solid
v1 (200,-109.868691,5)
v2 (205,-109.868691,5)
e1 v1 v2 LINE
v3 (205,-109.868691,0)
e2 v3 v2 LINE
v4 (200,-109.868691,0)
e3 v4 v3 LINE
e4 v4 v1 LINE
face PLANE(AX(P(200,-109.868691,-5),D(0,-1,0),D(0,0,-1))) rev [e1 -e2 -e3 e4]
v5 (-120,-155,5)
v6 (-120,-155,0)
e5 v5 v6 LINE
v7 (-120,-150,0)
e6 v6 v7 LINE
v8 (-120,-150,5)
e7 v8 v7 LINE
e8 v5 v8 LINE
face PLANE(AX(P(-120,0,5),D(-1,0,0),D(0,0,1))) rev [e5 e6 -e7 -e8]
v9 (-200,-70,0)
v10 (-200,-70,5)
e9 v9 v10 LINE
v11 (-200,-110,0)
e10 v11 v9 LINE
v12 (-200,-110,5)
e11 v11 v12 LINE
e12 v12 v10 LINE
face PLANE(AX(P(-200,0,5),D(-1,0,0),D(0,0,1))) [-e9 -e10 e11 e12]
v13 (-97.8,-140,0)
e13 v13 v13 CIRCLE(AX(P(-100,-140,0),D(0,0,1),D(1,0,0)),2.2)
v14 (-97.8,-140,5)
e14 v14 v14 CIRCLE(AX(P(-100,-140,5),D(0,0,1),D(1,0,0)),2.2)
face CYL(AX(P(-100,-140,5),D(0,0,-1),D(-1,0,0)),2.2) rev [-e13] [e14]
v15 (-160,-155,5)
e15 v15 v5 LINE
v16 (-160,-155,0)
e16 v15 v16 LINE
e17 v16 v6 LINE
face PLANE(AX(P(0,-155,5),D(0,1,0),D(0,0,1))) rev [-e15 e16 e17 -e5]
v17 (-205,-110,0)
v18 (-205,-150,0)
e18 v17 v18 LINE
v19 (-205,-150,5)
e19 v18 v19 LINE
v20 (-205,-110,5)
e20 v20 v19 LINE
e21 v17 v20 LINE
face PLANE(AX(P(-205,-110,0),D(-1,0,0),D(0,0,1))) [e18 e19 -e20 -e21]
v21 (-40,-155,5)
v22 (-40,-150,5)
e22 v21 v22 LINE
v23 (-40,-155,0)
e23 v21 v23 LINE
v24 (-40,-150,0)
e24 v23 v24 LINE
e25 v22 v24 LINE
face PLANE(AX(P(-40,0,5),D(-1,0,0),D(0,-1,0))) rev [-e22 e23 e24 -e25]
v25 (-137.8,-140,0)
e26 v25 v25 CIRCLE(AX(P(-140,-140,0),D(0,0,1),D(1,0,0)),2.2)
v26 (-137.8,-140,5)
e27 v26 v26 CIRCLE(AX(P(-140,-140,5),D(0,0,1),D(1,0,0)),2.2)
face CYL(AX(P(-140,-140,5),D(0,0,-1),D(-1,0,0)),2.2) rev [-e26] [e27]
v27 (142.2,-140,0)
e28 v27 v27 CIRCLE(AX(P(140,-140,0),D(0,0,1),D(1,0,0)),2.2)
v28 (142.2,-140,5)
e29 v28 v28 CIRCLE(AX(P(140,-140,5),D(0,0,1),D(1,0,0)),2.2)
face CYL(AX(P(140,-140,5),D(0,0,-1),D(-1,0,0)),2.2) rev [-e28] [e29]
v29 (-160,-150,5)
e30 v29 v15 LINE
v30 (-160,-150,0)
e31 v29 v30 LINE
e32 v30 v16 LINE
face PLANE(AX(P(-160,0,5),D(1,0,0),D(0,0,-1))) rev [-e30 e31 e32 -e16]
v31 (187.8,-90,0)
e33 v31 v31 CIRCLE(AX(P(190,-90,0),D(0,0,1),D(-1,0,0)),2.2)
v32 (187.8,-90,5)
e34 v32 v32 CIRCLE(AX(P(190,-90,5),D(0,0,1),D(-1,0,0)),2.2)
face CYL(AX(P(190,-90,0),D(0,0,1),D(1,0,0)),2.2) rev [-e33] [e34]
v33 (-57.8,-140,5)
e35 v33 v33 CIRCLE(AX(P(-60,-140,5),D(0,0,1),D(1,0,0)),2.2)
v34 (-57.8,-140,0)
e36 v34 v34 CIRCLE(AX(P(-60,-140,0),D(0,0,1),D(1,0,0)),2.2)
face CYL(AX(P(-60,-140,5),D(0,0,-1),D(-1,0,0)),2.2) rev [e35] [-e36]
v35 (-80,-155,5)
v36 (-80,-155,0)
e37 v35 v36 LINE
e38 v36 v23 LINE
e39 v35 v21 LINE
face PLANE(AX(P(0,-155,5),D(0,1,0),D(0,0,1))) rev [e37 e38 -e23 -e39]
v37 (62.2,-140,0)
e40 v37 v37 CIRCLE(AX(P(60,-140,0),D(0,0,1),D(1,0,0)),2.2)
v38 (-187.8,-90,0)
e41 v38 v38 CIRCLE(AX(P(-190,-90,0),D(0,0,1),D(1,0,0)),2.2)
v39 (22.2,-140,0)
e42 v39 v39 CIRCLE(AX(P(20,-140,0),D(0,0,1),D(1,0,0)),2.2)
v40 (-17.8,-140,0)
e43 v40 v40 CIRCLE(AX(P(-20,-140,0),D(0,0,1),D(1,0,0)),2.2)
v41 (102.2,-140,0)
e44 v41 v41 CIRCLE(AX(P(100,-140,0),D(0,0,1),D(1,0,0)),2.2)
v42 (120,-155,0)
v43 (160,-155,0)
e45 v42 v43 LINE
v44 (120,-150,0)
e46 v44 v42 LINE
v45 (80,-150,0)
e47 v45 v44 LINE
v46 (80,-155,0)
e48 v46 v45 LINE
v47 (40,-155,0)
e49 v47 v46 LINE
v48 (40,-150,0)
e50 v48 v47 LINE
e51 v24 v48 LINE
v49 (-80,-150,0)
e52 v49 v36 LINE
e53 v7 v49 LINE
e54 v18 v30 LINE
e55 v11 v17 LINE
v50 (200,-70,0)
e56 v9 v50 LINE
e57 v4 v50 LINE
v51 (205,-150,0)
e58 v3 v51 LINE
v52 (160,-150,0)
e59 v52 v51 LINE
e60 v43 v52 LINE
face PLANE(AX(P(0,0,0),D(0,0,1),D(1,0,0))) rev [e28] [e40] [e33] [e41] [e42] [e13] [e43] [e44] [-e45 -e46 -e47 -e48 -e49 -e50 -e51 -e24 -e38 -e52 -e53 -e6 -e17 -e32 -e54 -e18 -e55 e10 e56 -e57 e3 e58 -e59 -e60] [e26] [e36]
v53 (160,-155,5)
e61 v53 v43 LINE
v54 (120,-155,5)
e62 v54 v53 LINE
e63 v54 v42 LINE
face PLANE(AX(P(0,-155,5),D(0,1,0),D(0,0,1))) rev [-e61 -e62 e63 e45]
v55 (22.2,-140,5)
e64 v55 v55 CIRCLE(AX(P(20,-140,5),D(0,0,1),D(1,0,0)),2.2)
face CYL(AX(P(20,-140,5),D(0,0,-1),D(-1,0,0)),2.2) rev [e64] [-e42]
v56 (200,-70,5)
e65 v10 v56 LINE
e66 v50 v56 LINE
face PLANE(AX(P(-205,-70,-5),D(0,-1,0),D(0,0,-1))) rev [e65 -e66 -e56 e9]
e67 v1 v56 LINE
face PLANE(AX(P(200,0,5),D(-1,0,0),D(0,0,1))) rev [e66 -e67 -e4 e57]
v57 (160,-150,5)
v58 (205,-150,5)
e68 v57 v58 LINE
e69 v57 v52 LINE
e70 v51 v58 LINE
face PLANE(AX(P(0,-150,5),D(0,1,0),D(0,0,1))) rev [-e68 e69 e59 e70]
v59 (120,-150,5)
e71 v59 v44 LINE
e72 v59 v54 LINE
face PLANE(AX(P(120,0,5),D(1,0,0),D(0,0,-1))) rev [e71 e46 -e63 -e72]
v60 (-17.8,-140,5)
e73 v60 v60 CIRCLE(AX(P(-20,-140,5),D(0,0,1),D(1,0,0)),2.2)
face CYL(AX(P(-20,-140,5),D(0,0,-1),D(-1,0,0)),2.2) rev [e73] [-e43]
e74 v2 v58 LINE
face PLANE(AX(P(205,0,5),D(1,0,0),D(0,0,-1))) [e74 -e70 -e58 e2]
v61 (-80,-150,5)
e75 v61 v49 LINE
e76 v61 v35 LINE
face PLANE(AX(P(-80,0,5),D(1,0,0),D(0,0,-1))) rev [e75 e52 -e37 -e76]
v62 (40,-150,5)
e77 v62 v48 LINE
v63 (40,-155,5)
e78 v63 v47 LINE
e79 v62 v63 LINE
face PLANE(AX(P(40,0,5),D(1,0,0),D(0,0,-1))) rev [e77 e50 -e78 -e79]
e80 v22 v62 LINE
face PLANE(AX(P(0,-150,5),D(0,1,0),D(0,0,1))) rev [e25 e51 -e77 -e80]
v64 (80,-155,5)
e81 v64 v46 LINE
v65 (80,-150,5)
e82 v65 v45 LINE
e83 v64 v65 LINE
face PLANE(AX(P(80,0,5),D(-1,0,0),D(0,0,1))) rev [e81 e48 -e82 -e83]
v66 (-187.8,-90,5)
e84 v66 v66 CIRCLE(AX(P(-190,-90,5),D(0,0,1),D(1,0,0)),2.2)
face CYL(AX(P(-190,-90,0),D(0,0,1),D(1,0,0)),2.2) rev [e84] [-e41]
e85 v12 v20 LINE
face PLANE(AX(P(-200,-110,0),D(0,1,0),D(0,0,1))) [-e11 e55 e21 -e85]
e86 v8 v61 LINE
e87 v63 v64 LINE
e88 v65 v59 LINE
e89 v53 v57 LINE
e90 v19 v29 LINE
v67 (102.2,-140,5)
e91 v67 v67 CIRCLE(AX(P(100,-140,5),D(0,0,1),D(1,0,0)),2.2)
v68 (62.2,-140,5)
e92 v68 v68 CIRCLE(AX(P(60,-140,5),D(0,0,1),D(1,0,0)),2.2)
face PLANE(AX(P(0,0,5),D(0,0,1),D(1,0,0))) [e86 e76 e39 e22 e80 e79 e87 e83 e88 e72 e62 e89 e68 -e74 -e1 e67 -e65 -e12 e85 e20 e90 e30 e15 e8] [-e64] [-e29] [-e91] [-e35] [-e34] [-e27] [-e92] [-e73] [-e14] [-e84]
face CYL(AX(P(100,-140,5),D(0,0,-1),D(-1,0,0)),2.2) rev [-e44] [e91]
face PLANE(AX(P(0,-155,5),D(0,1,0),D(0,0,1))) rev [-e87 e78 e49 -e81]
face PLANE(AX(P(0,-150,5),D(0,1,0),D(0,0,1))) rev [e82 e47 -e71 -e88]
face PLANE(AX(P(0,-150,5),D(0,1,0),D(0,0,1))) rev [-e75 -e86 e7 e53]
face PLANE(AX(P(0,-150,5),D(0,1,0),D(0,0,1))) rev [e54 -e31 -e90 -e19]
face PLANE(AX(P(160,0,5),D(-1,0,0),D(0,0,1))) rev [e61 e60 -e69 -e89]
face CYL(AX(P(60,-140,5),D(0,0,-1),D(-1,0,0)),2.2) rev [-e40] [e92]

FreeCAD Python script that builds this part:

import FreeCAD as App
import Part
import Sketcher
from FreeCAD import Vector

doc = App.newDocument("Part")
body = doc.addObject("PartDesign::Body", "Body")

# Sketch on XY plane
sketch1 = doc.addObject("Sketcher::SketchObject", "Sketch")
body.addObject(sketch1)
sketch1.AttachmentSupport = (doc.XY_Plane, [""])
sketch1.MapMode = "FlatFace"
sketch1.addGeometry([
    Part.LineSegment(Vector(200, 150, 0), Vector(-200, 150, 0)),  # 0
    Part.LineSegment(Vector(-200, 150, 0), Vector(-200, 110, 0)),  # 1
    Part.LineSegment(Vector(-200, 110, 0), Vector(-205, 110, 0)),  # 2
    Part.LineSegment(Vector(-205, 110, 0), Vector(-205, 70, 0)),  # 3
    Part.LineSegment(Vector(-205, 70, 0), Vector(-200, 70, 0)),  # 4
    Part.LineSegment(Vector(-200, 70, 0), Vector(-200, 30, 0)),  # 5
    Part.LineSegment(Vector(-200, 30, 0), Vector(-205, 30, 0)),  # 6
    Part.LineSegment(Vector(-205, 30, 0), Vector(-205, -30, 0)),  # 7
    Part.LineSegment(Vector(-205, -30, 0), Vector(-200, -30, 0)),  # 8
    Part.LineSegment(Vector(-200, -30, 0), Vector(-200, -70, 0)),  # 9
    Part.LineSegment(Vector(-200, -70, 0), Vector(-205, -70, 0)),  # 10
    Part.LineSegment(Vector(-205, -70, 0), Vector(-205, -110, 0)),  # 11
    Part.LineSegment(Vector(-205, -110, 0), Vector(-200, -110, 0)),  # 12
    Part.LineSegment(Vector(-200, -110, 0), Vector(-200, -150, 0)),  # 13
    Part.LineSegment(Vector(-200, -150, 0), Vector(-160, -150, 0)),  # 14
    Part.LineSegment(Vector(-160, -150, 0), Vector(-160, -155, 0)),  # 15
    Part.LineSegment(Vector(-160, -155, 0), Vector(-120, -155, 0)),  # 16
    Part.LineSegment(Vector(-120, -155, 0), Vector(-120, -150, 0)),  # 17
    Part.LineSegment(Vector(-120, -150, 0), Vector(-80, -150, 0)),  # 18
    Part.LineSegment(Vector(-80, -150, 0), Vector(-80, -155, 0)),  # 19
    Part.LineSegment(Vector(-80, -155, 0), Vector(-40, -155, 0)),  # 20
    Part.LineSegment(Vector(-40, -155, 0), Vector(-40, -150, 0)),  # 21
    Part.LineSegment(Vector(-40, -150, 0), Vector(40, -150, 0)),  # 22
    Part.LineSegment(Vector(40, -150, 0), Vector(40, -155, 0)),  # 23
    Part.LineSegment(Vector(40, -155, 0), Vector(80, -155, 0)),  # 24
    Part.LineSegment(Vector(80, -155, 0), Vector(80, -150, 0)),  # 25
    Part.LineSegment(Vector(80, -150, 0), Vector(120, -150, 0)),  # 26
    Part.LineSegment(Vector(120, -150, 0), Vector(120, -155, 0)),  # 27
    Part.LineSegment(Vector(120, -155, 0), Vector(160, -155, 0)),  # 28
    Part.LineSegment(Vector(160, -155, 0), Vector(160, -150, 0)),  # 29
    Part.LineSegment(Vector(160, -150, 0), Vector(200, -150, 0)),  # 30
    Part.LineSegment(Vector(200, -150, 0), Vector(200, -110, 0)),  # 31
    Part.LineSegment(Vector(200, -110, 0), Vector(205, -110, 0)),  # 32
    Part.LineSegment(Vector(205, -110, 0), Vector(205, -70, 0)),  # 33
    Part.LineSegment(Vector(205, -70, 0), Vector(200, -70, 0)),  # 34
    Part.LineSegment(Vector(200, -70, 0), Vector(200, -30, 0)),  # 35
    Part.LineSegment(Vector(200, -30, 0), Vector(205, -30, 0)),  # 36
    Part.LineSegment(Vector(205, -30, 0), Vector(205, 30, 0)),  # 37
    Part.LineSegment(Vector(205, 30, 0), Vector(200, 30, 0)),  # 38
    Part.LineSegment(Vector(200, 30, 0), Vector(200, 70, 0)),  # 39
    Part.LineSegment(Vector(200, 70, 0), Vector(205, 70, 0)),  # 40
    Part.LineSegment(Vector(205, 70, 0), Vector(205, 110, 0)),  # 41
    Part.LineSegment(Vector(205, 110, 0), Vector(200, 110, 0)),  # 42
    Part.LineSegment(Vector(200, 110, 0), Vector(200, 150, 0)),  # 43
    Part.Circle(Vector(140, -140, 0), Vector(0, 0, 1), 2.2),  # 44
    Part.Circle(Vector(100, -140, 0), Vector(0, 0, 1), 2.2),  # 45
    Part.Circle(Vector(190, -110, 0), Vector(0, 0, 1), 2.2),  # 46
    Part.Circle(Vector(60, -140, 0), Vector(0, 0, 1), 2.2),  # 47
    Part.Circle(Vector(20, -140, 0), Vector(0, 0, 1), 2.2),  # 48
    Part.Circle(Vector(190, -70, 0), Vector(0, 0, 1), 2.2),  # 49
    Part.Circle(Vector(190, -30, 0), Vector(0, 0, 1), 2.2),  # 50
    Part.Circle(Vector(-20, -140, 0), Vector(0, 0, 1), 2.2),  # 51
    Part.Circle(Vector(-60, -140, 0), Vector(0, 0, 1), 2.2),  # 52
    Part.Circle(Vector(-100, -140, 0), Vector(0, 0, 1), 2.2),  # 53
    Part.Circle(Vector(-140, -140, 0), Vector(0, 0, 1), 2.2),  # 54
    Part.Circle(Vector(-190, -110, 0), Vector(0, 0, 1), 2.2),  # 55
    Part.Circle(Vector(-190, -70, 0), Vector(0, 0, 1), 2.2),  # 56
    Part.Circle(Vector(-190, -30, 0), Vector(0, 0, 1), 2.2),  # 57
    Part.Circle(Vector(190, 30, 0), Vector(0, 0, 1), 2.2),  # 58
    Part.Circle(Vector(190, 70, 0), Vector(0, 0, 1), 2.2),  # 59
    Part.Circle(Vector(190, 110, 0), Vector(0, 0, 1), 2.2),  # 60
    Part.Circle(Vector(-190, 30, 0), Vector(0, 0, 1), 2.2),  # 61
    Part.Circle(Vector(-190, 70, 0), Vector(0, 0, 1), 2.2),  # 62
    Part.Circle(Vector(-190, 110, 0), Vector(0, 0, 1), 2.2),  # 63
], False)
sketch1.addConstraint([
    Sketcher.Constraint("Coincident", 0, 2, 1, 1),
    Sketcher.Constraint("Coincident", 1, 2, 2, 1),
    Sketcher.Constraint("Coincident", 2, 2, 3, 1),
    Sketcher.Constraint("Coincident", 3, 2, 4, 1),
    Sketcher.Constraint("Coincident", 4, 2, 5, 1),
    Sketcher.Constraint("Coincident", 5, 2, 6, 1),
    Sketcher.Constraint("Coincident", 6, 2, 7, 1),
    Sketcher.Constraint("Coincident", 7, 2, 8, 1),
    Sketcher.Constraint("Coincident", 8, 2, 9, 1),
    Sketcher.Constraint("Coincident", 9, 2, 10, 1),
    Sketcher.Constraint("Coincident", 10, 2, 11, 1),
    Sketcher.Constraint("Coincident", 11, 2, 12, 1),
    Sketcher.Constraint("Coincident", 12, 2, 13, 1),
    Sketcher.Constraint("Coincident", 13, 2, 14, 1),
    Sketcher.Constraint("Coincident", 14, 2, 15, 1),
    Sketcher.Constraint("Coincident", 15, 2, 16, 1),
    Sketcher.Constraint("Coincident", 16, 2, 17, 1),
    Sketcher.Constraint("Coincident", 17, 2, 18, 1),
    Sketcher.Constraint("Coincident", 18, 2, 19, 1),
    Sketcher.Constraint("Coincident", 19, 2, 20, 1),
    Sketcher.Constraint("Coincident", 20, 2, 21, 1),
    Sketcher.Constraint("Coincident", 21, 2, 22, 1),
    Sketcher.Constraint("Coincident", 22, 2, 23, 1),
    Sketcher.Constraint("Coincident", 23, 2, 24, 1),
    Sketcher.Constraint("Coincident", 24, 2, 25, 1),
    Sketcher.Constraint("Coincident", 25, 2, 26, 1),
    Sketcher.Constraint("Coincident", 26, 2, 27, 1),
    Sketcher.Constraint("Coincident", 27, 2, 28, 1),
    Sketcher.Constraint("Coincident", 28, 2, 29, 1),
    Sketcher.Constraint("Coincident", 29, 2, 30, 1),
    Sketcher.Constraint("Coincident", 30, 2, 31, 1),
    Sketcher.Constraint("Coincident", 31, 2, 32, 1),
    Sketcher.Constraint("Coincident", 32, 2, 33, 1),
    Sketcher.Constraint("Coincident", 33, 2, 34, 1),
    Sketcher.Constraint("Coincident", 34, 2, 35, 1),
    Sketcher.Constraint("Coincident", 35, 2, 36, 1),
    Sketcher.Constraint("Coincident", 36, 2, 37, 1),
    Sketcher.Constraint("Coincident", 37, 2, 38, 1),
    Sketcher.Constraint("Coincident", 38, 2, 39, 1),
    Sketcher.Constraint("Coincident", 39, 2, 40, 1),
    Sketcher.Constraint("Coincident", 40, 2, 41, 1),
    Sketcher.Constraint("Coincident", 41, 2, 42, 1),
    Sketcher.Constraint("Coincident", 42, 2, 43, 1),
    Sketcher.Constraint("Coincident", 43, 2, 0, 1),
    Sketcher.Constraint("Horizontal", 0),
    Sketcher.Constraint("Vertical", 1),
    Sketcher.Constraint("Horizontal", 2),
    Sketcher.Constraint("Vertical", 3),
    Sketcher.Constraint("Horizontal", 4),
    Sketcher.Constraint("Vertical", 5),
    Sketcher.Constraint("Horizontal", 6),
    Sketcher.Constraint("Vertical", 7),
    Sketcher.Constraint("Horizontal", 8),
    Sketcher.Constraint("Vertical", 9),
    Sketcher.Constraint("Horizontal", 10),
    Sketcher.Constraint("Vertical", 11),
    Sketcher.Constraint("Horizontal", 12),
    Sketcher.Constraint("Vertical", 13),
    Sketcher.Constraint("Horizontal", 14),
    Sketcher.Constraint("Vertical", 15),
    Sketcher.Constraint("Horizontal", 16),
    Sketcher.Constraint("Vertical", 17),
    Sketcher.Constraint("Horizontal", 18),
    Sketcher.Constraint("Vertical", 19),
    Sketcher.Constraint("Horizontal", 20),
    Sketcher.Constraint("Vertical", 21),
    Sketcher.Constraint("Horizontal", 22),
    Sketcher.Constraint("Vertical", 23),
    Sketcher.Constraint("Horizontal", 24),
    Sketcher.Constraint("Vertical", 25),
    Sketcher.Constraint("Horizontal", 26),
    Sketcher.Constraint("Vertical", 27),
    Sketcher.Constraint("Horizontal", 28),
    Sketcher.Constraint("Vertical", 29),
    Sketcher.Constraint("Horizontal", 30),
    Sketcher.Constraint("Vertical", 31),
    Sketcher.Constraint("Horizontal", 32),
    Sketcher.Constraint("Vertical", 33),
    Sketcher.Constraint("Horizontal", 34),
    Sketcher.Constraint("Vertical", 35),
    Sketcher.Constraint("Horizontal", 36),
    Sketcher.Constraint("Vertical", 37),
    Sketcher.Constraint("Horizontal", 38),
    Sketcher.Constraint("Vertical", 39),
    Sketcher.Constraint("Horizontal", 40),
    Sketcher.Constraint("Vertical", 41),
    Sketcher.Constraint("Horizontal", 42),
    Sketcher.Constraint("Vertical", 43),
    Sketcher.Constraint("Equal", 44, 45),
    Sketcher.Constraint("Equal", 45, 46),
    Sketcher.Constraint("Equal", 46, 47),
    Sketcher.Constraint("Equal", 47, 48),
    Sketcher.Constraint("Equal", 48, 49),
    Sketcher.Constraint("Equal", 49, 50),
    Sketcher.Constraint("Equal", 50, 51),
    Sketcher.Constraint("Equal", 51, 52),
    Sketcher.Constraint("Equal", 52, 53),
    Sketcher.Constraint("Equal", 53, 54),
    Sketcher.Constraint("Equal", 54, 55),
    Sketcher.Constraint("Equal", 55, 56),
    Sketcher.Constraint("Equal", 56, 57),
    Sketcher.Constraint("Equal", 57, 58),
    Sketcher.Constraint("Equal", 58, 59),
    Sketcher.Constraint("Equal", 59, 60),
    Sketcher.Constraint("Equal", 60, 61),
    Sketcher.Constraint("Equal", 61, 62),
    Sketcher.Constraint("Equal", 62, 63),
    Sketcher.Constraint("Symmetric", 57, 3, 58, 3, -1, 1),
    Sketcher.Constraint("Symmetric", 56, 3, 59, 3, -1, 1),
    Sketcher.Constraint("Symmetric", 55, 3, 60, 3, -1, 1),
    Sketcher.Constraint("Symmetric", 50, 3, 61, 3, -1, 1),
    Sketcher.Constraint("Symmetric", 49, 3, 62, 3, -1, 1),
    Sketcher.Constraint("Symmetric", 46, 3, 63, 3, -1, 1),
    Sketcher.Constraint("Symmetric", 0, 2, 30, 2, -1, 1),
    Sketcher.Constraint("Symmetric", 2, 2, 32, 2, -1, 1),
    Sketcher.Constraint("Symmetric", 4, 2, 34, 2, -1, 1),
    Sketcher.Constraint("Symmetric", 6, 2, 36, 2, -1, 1),
    Sketcher.Constraint("Symmetric", 8, 2, 38, 2, -1, 1),
    Sketcher.Constraint("Symmetric", 10, 2, 40, 2, -1, 1),
    Sketcher.Constraint("Symmetric", 12, 2, 42, 2, -1, 1),
    Sketcher.Constraint("Symmetric", 48, 3, 51, 3, -2),
    Sketcher.Constraint("Symmetric", 47, 3, 52, 3, -2),
    Sketcher.Constraint("Symmetric", 45, 3, 53, 3, -2),
    Sketcher.Constraint("Symmetric", 44, 3, 54, 3, -2),
    Sketcher.Constraint("Symmetric", 46, 3, 55, 3, -2),
    Sketcher.Constraint("Symmetric", 49, 3, 56, 3, -2),
    Sketcher.Constraint("Symmetric", 50, 3, 57, 3, -2),
    Sketcher.Constraint("Symmetric", 20, 2, 23, 2, -2),
    Sketcher.Constraint("Symmetric", 18, 2, 25, 2, -2),
    Sketcher.Constraint("Symmetric", 16, 2, 27, 2, -2),
    Sketcher.Constraint("Symmetric", 14, 2, 29, 2, -2),
    Sketcher.Constraint("Symmetric", 12, 2, 31, 2, -2),
    Sketcher.Constraint("Symmetric", 10, 2, 33, 2, -2),
    Sketcher.Constraint("Symmetric", 8, 2, 35, 2, -2),
    Sketcher.Constraint("Horizontal", 44, 3, 45, 3),
    Sketcher.Constraint("Horizontal", 45, 3, 47, 3),
    Sketcher.Constraint("Horizontal", 47, 3, 48, 3),
    Sketcher.Constraint("Horizontal", 63, 3, 1, 2),
    Sketcher.Constraint("Horizontal", 62, 3, 3, 2),
    Sketcher.Constraint("Horizontal", 61, 3, 5, 2),
    Sketcher.Constraint("Horizontal", 14, 2, 17, 2),
    Sketcher.Constraint("Horizontal", 16, 2, 19, 2),
    Sketcher.Constraint("Horizontal", 18, 2, 21, 2),
    Sketcher.Constraint("Vertical", 46, 3, 49, 3),
    Sketcher.Constraint("Vertical", 49, 3, 50, 3),
    Sketcher.Constraint("Vertical", 1, 2, 4, 2),
    Sketcher.Constraint("Vertical", 3, 2, 6, 2),
    Sketcher.Constraint("Equal", 14, 16),
    Sketcher.Constraint("Equal", 16, 18),
    Sketcher.Constraint("Equal", 18, 20),
    Sketcher.Constraint("Equal", 30, 1),
    Sketcher.Constraint("Equal", 1, 3),
    Sketcher.Constraint("Equal", 3, 5),
    Sketcher.Constraint("Equal", 42, 15),
    Sketcher.Constraint("Diameter", 44, 4.4),
    Sketcher.Constraint("DistanceX", 0, 2, 0, 1, 400.0),
    Sketcher.Constraint("DistanceX", 2, 2, 2, 1, 5.0),
    Sketcher.Constraint("DistanceX", 14, 1, 14, 2, 40.0),
    Sketcher.Constraint("DistanceY", 7, 2, 7, 1, 60.0),
    Sketcher.Constraint("DistanceX", -1, 1, 44, 3, 140.0),
    Sketcher.Constraint("DistanceY", 44, 3, -1, 1, 140.0),
    Sketcher.Constraint("DistanceX", -1, 1, 45, 3, 100.0),
    Sketcher.Constraint("DistanceX", -1, 1, 46, 3, 190.0),
    Sketcher.Constraint("DistanceX", -1, 1, 47, 3, 60.0),
    Sketcher.Constraint("DistanceX", -1, 1, 48, 3, 20.0),
])
pad1 = doc.addObject("PartDesign::Pad", "Pad")
body.addObject(pad1)
pad1.Profile = sketch1
pad1.Length = 5

# Sketch on XY plane
sketch2 = doc.addObject("Sketcher::SketchObject", "Sketch001")
body.addObject(sketch2)
sketch2.AttachmentSupport = (doc.XY_Plane, [""])
sketch2.MapMode = "FlatFace"
sketch2.AttachmentOffset = App.Placement(Vector(0, 0, 5), App.Rotation())
sketch2.addGeometry([
    Part.LineSegment(Vector(-205, 110, 0), Vector(-205, -110.282443, 0)),  # 0
    Part.LineSegment(Vector(-205, -110.282443, 0), Vector(-200, -110.282443, 0)),  # 1
    Part.LineSegment(Vector(-200, -110.282443, 0), Vector(-200, 110, 0)),  # 2
    Part.LineSegment(Vector(-200, 110, 0), Vector(-205, 110, 0)),  # 3
    Part.LineSegment(Vector(200, 110, 0), Vector(200, -109.868691, 0)),  # 4
    Part.LineSegment(Vector(200, -109.868691, 0), Vector(205, -109.868691, 0)),  # 5
    Part.LineSegment(Vector(205, -109.868691, 0), Vector(205, 110, 0)),  # 6
    Part.LineSegment(Vector(205, 110, 0), Vector(200, 110, 0)),  # 7
], False)
sketch2.addConstraint([
    Sketcher.Constraint("Coincident", 0, 2, 1, 1),
    Sketcher.Constraint("Coincident", 1, 2, 2, 1),
    Sketcher.Constraint("Coincident", 2, 2, 3, 1),
    Sketcher.Constraint("Coincident", 3, 2, 0, 1),
    Sketcher.Constraint("Coincident", 4, 2, 5, 1),
    Sketcher.Constraint("Coincident", 5, 2, 6, 1),
    Sketcher.Constraint("Coincident", 6, 2, 7, 1),
    Sketcher.Constraint("Coincident", 7, 2, 4, 1),
    Sketcher.Constraint("Vertical", 0),
    Sketcher.Constraint("Horizontal", 1),
    Sketcher.Constraint("Vertical", 2),
    Sketcher.Constraint("Horizontal", 3),
    Sketcher.Constraint("Vertical", 4),
    Sketcher.Constraint("Horizontal", 5),
    Sketcher.Constraint("Vertical", 6),
    Sketcher.Constraint("Horizontal", 7),
    Sketcher.Constraint("Symmetric", 3, 2, 6, 2, -2),
    Sketcher.Constraint("Equal", 3, 5),
    Sketcher.Constraint("DistanceX", 1, 1, 1, 2, 5.0),
    Sketcher.Constraint("DistanceX", 0, 2, -1, 1, 205.0),
    Sketcher.Constraint("DistanceY", -1, 1, 2, 2, 110.0),
    Sketcher.Constraint("DistanceY", 4, 2, 4, 1, 219.868691),
    Sketcher.Constraint("DistanceY", 0, 2, 0, 1, 220.282443),
])
pocket1 = doc.addObject("PartDesign::Pocket", "Pocket")
body.addObject(pocket1)
pocket1.Profile = sketch2
pocket1.Length = 10

# Sketch on XY plane
sketch3 = doc.addObject("Sketcher::SketchObject", "Sketch002")
body.addObject(sketch3)
sketch3.AttachmentSupport = (doc.XY_Plane, [""])
sketch3.MapMode = "FlatFace"
sketch3.AttachmentOffset = App.Placement(Vector(0, 0, 5), App.Rotation())
sketch3.addGeometry([
    Part.LineSegment(Vector(-205, 150, 0), Vector(-205, 110, 0)),  # 0
    Part.LineSegment(Vector(-205, 110, 0), Vector(-200, 110, 0)),  # 1
    Part.LineSegment(Vector(-200, 110, 0), Vector(-200, 150, 0)),  # 2
    Part.LineSegment(Vector(-200, 150, 0), Vector(-205, 150, 0)),  # 3
    Part.LineSegment(Vector(-205, 70, 0), Vector(-205, 30, 0)),  # 4
    Part.LineSegment(Vector(-205, 30, 0), Vector(-200, 30, 0)),  # 5
    Part.LineSegment(Vector(-200, 30, 0), Vector(-200, 70, 0)),  # 6
    Part.LineSegment(Vector(-200, 70, 0), Vector(-205, 70, 0)),  # 7
    Part.LineSegment(Vector(-205, -30, 0), Vector(-205, -70, 0)),  # 8
    Part.LineSegment(Vector(-205, -70, 0), Vector(-200, -70, 0)),  # 9
    Part.LineSegment(Vector(-200, -70, 0), Vector(-200, -30, 0)),  # 10
    Part.LineSegment(Vector(-200, -30, 0), Vector(-205, -30, 0)),  # 11
    Part.LineSegment(Vector(-205, -110, 0), Vector(-205, -150, 0)),  # 12
    Part.LineSegment(Vector(-205, -150, 0), Vector(-200, -150, 0)),  # 13
    Part.LineSegment(Vector(-200, -150, 0), Vector(-200, -110, 0)),  # 14
    Part.LineSegment(Vector(-200, -110, 0), Vector(-205, -110, 0)),  # 15
    Part.LineSegment(Vector(200, -110, 0), Vector(200, -150, 0)),  # 16
    Part.LineSegment(Vector(200, -150, 0), Vector(205, -150, 0)),  # 17
    Part.LineSegment(Vector(205, -150, 0), Vector(205, -110, 0)),  # 18
    Part.LineSegment(Vector(205, -110, 0), Vector(200, -110, 0)),  # 19
    Part.LineSegment(Vector(200, -30, 0), Vector(200, -70, 0)),  # 20
    Part.LineSegment(Vector(200, -70, 0), Vector(205, -70, 0)),  # 21
    Part.LineSegment(Vector(205, -70, 0), Vector(205, -30, 0)),  # 22
    Part.LineSegment(Vector(205, -30, 0), Vector(200, -30, 0)),  # 23
    Part.LineSegment(Vector(200, 70, 0), Vector(200, 30, 0)),  # 24
    Part.LineSegment(Vector(200, 30, 0), Vector(205, 30, 0)),  # 25
    Part.LineSegment(Vector(205, 30, 0), Vector(205, 70, 0)),  # 26
    Part.LineSegment(Vector(205, 70, 0), Vector(200, 70, 0)),  # 27
    Part.LineSegment(Vector(200, 150, 0), Vector(200, 110, 0)),  # 28
    Part.LineSegment(Vector(200, 110, 0), Vector(205, 110, 0)),  # 29
    Part.LineSegment(Vector(205, 110, 0), Vector(205, 150, 0)),  # 30
    Part.LineSegment(Vector(205, 150, 0), Vector(200, 150, 0)),  # 31
], False)
sketch3.addConstraint([
    Sketcher.Constraint("Coincident", 0, 2, 1, 1),
    Sketcher.Constraint("Coincident", 1, 2, 2, 1),
    Sketcher.Constraint("Coincident", 2, 2, 3, 1),
    Sketcher.Constraint("Coincident", 3, 2, 0, 1),
    Sketcher.Constraint("Coincident", 4, 2, 5, 1),
    Sketcher.Constraint("Coincident", 5, 2, 6, 1),
    Sketcher.Constraint("Coincident", 6, 2, 7, 1),
    Sketcher.Constraint("Coincident", 7, 2, 4, 1),
    Sketcher.Constraint("Coincident", 8, 2, 9, 1),
    Sketcher.Constraint("Coincident", 9, 2, 10, 1),
    Sketcher.Constraint("Coincident", 10, 2, 11, 1),
    Sketcher.Constraint("Coincident", 11, 2, 8, 1),
    Sketcher.Constraint("Coincident", 12, 2, 13, 1),
    Sketcher.Constraint("Coincident", 13, 2, 14, 1),
    Sketcher.Constraint("Coincident", 14, 2, 15, 1),
    Sketcher.Constraint("Coincident", 15, 2, 12, 1),
    Sketcher.Constraint("Coincident", 16, 2, 17, 1),
    Sketcher.Constraint("Coincident", 17, 2, 18, 1),
    Sketcher.Constraint("Coincident", 18, 2, 19, 1),
    Sketcher.Constraint("Coincident", 19, 2, 16, 1),
    Sketcher.Constraint("Coincident", 20, 2, 21, 1),
    Sketcher.Constraint("Coincident", 21, 2, 22, 1),
    Sketcher.Constraint("Coincident", 22, 2, 23, 1),
    Sketcher.Constraint("Coincident", 23, 2, 20, 1),
    Sketcher.Constraint("Coincident", 24, 2, 25, 1),
    Sketcher.Constraint("Coincident", 25, 2, 26, 1),
    Sketcher.Constraint("Coincident", 26, 2, 27, 1),
    Sketcher.Constraint("Coincident", 27, 2, 24, 1),
    Sketcher.Constraint("Coincident", 28, 2, 29, 1),
    Sketcher.Constraint("Coincident", 29, 2, 30, 1),
    Sketcher.Constraint("Coincident", 30, 2, 31, 1),
    Sketcher.Constraint("Coincident", 31, 2, 28, 1),
    Sketcher.Constraint("Vertical", 0),
    Sketcher.Constraint("Horizontal", 1),
    Sketcher.Constraint("Vertical", 2),
    Sketcher.Constraint("Horizontal", 3),
    Sketcher.Constraint("Vertical", 4),
    Sketcher.Constraint("Horizontal", 5),
    Sketcher.Constraint("Vertical", 6),
    Sketcher.Constraint("Horizontal", 7),
    Sketcher.Constraint("Vertical", 8),
    Sketcher.Constraint("Horizontal", 9),
    Sketcher.Constraint("Vertical", 10),
    Sketcher.Constraint("Horizontal", 11),
    Sketcher.Constraint("Vertical", 12),
    Sketcher.Constraint("Horizontal", 13),
    Sketcher.Constraint("Vertical", 14),
    Sketcher.Constraint("Horizontal", 15),
    Sketcher.Constraint("Vertical", 16),
    Sketcher.Constraint("Horizontal", 17),
    Sketcher.Constraint("Vertical", 18),
    Sketcher.Constraint("Horizontal", 19),
    Sketcher.Constraint("Vertical", 20),
    Sketcher.Constraint("Horizontal", 21),
    Sketcher.Constraint("Vertical", 22),
    Sketcher.Constraint("Horizontal", 23),
    Sketcher.Constraint("Vertical", 24),
    Sketcher.Constraint("Horizontal", 25),
    Sketcher.Constraint("Vertical", 26),
    Sketcher.Constraint("Horizontal", 27),
    Sketcher.Constraint("Vertical", 28),
    Sketcher.Constraint("Horizontal", 29),
    Sketcher.Constraint("Vertical", 30),
    Sketcher.Constraint("Horizontal", 31),
    Sketcher.Constraint("Symmetric", 2, 2, 16, 2, -1, 1),
    Sketcher.Constraint("Symmetric", 0, 2, 18, 2, -1, 1),
    Sketcher.Constraint("Symmetric", 6, 2, 20, 2, -1, 1),
    Sketcher.Constraint("Symmetric", 4, 2, 22, 2, -1, 1),
    Sketcher.Constraint("Symmetric", 10, 2, 24, 2, -1, 1),
    Sketcher.Constraint("Symmetric", 8, 2, 26, 2, -1, 1),
    Sketcher.Constraint("Symmetric", 14, 2, 28, 2, -1, 1),
    Sketcher.Constraint("Symmetric", 12, 2, 30, 2, -1, 1),
    Sketcher.Constraint("Symmetric", 13, 2, 16, 2, -2),
    Sketcher.Constraint("Symmetric", 15, 2, 18, 2, -2),
    Sketcher.Constraint("Symmetric", 9, 2, 20, 2, -2),
    Sketcher.Constraint("Symmetric", 11, 2, 22, 2, -2),
    Sketcher.Constraint("Vertical", 3, 2, 4, 2),
    Sketcher.Constraint("Vertical", 2, 2, 5, 2),
    Sketcher.Constraint("Equal", 2, 4),
    Sketcher.Constraint("DistanceX", 1, 1, 1, 2, 5.0),
    Sketcher.Constraint("DistanceY", 0, 2, 0, 1, 40.0),
    Sketcher.Constraint("DistanceX", 0, 2, -1, 1, 205.0),
    Sketcher.Constraint("DistanceY", -1, 1, 0, 2, 110.0),
    Sketcher.Constraint("DistanceY", -1, 1, 4, 2, 30.0),
])
pad2 = doc.addObject("PartDesign::Pad", "Pad001")
body.addObject(pad2)
pad2.Profile = sketch3
pad2.Length = 5
pad2.Reversed = True

# Sketch on XY plane
sketch4 = doc.addObject("Sketcher::SketchObject", "Sketch003")
body.addObject(sketch4)
sketch4.AttachmentSupport = (doc.XY_Plane, [""])
sketch4.MapMode = "FlatFace"
sketch4.AttachmentOffset = App.Placement(Vector(0, 0, 5), App.Rotation())
sketch4.addGeometry([
    Part.LineSegment(Vector(-193.40367, 139.805503, 0), Vector(-193.40367, -124.884704, 0)),
    Part.LineSegment(Vector(-193.40367, -124.884704, 0), Vector(197.017512, -124.884704, 0)),
    Part.LineSegment(Vector(197.017512, -124.884704, 0), Vector(197.017512, 139.805503, 0)),
    Part.LineSegment(Vector(197.017512, 139.805503, 0), Vector(-193.40367, 139.805503, 0)),
], False)
sketch4.addConstraint([
    Sketcher.Constraint("Coincident", 0, 2, 1, 1),
    Sketcher.Constraint("Coincident", 1, 2, 2, 1),
    Sketcher.Constraint("Coincident", 2, 2, 3, 1),
    Sketcher.Constraint("Coincident", 3, 2, 0, 1),
    Sketcher.Constraint("Vertical", 0),
    Sketcher.Constraint("Horizontal", 1),
    Sketcher.Constraint("Vertical", 2),
    Sketcher.Constraint("Horizontal", 3),
    Sketcher.Constraint("DistanceX", 1, 1, 1, 2, 390.421183),
    Sketcher.Constraint("DistanceY", 0, 2, 0, 1, 264.690207),
    Sketcher.Constraint("DistanceX", 0, 2, -1, 1, 193.40367),
    Sketcher.Constraint("DistanceY", 0, 2, -1, 1, 124.884704),
])
pad3 = doc.addObject("PartDesign::Pad", "Pad002")
body.addObject(pad3)
pad3.Profile = sketch4
pad3.Length = 5
pad3.Reversed = True

# Sketch on XY plane
sketch5 = doc.addObject("Sketcher::SketchObject", "Sketch004")
body.addObject(sketch5)
sketch5.AttachmentSupport = (doc.XY_Plane, [""])
sketch5.MapMode = "FlatFace"
sketch5.AttachmentOffset = App.Placement(Vector(0, 0, 5), App.Rotation())
sketch5.addGeometry([
    Part.Circle(Vector(-190, 90, 0), Vector(0, 0, 1), 2.2),  # 0
    Part.Circle(Vector(-190, 50, 0), Vector(0, 0, 1), 2.2),  # 1
    Part.Circle(Vector(-190, 0, 0), Vector(0, 0, 1), 2.2),  # 2
    Part.Circle(Vector(-190, -50, 0), Vector(0, 0, 1), 2.2),  # 3
    Part.Circle(Vector(-190, -90, 0), Vector(0, 0, 1), 2.2),  # 4
    Part.Circle(Vector(190, -90, 0), Vector(0, 0, 1), 2.2),  # 5
    Part.Circle(Vector(190, -50, 0), Vector(0, 0, 1), 2.2),  # 6
    Part.Circle(Vector(190, 0, 0), Vector(0, 0, 1), 2.2),  # 7
    Part.Circle(Vector(190, 50, 0), Vector(0, 0, 1), 2.2),  # 8
    Part.Circle(Vector(190, 90, 0), Vector(0, 0, 1), 2.2),  # 9
], False)
sketch5.addConstraint([
    Sketcher.Constraint("Equal", 0, 1),
    Sketcher.Constraint("Equal", 1, 2),
    Sketcher.Constraint("Equal", 2, 3),
    Sketcher.Constraint("Equal", 3, 4),
    Sketcher.Constraint("Equal", 4, 5),
    Sketcher.Constraint("Equal", 5, 6),
    Sketcher.Constraint("Equal", 6, 7),
    Sketcher.Constraint("Equal", 7, 8),
    Sketcher.Constraint("Equal", 8, 9),
    Sketcher.Constraint("Symmetric", 0, 3, 5, 3, -1, 1),
    Sketcher.Constraint("Symmetric", 1, 3, 6, 3, -1, 1),
    Sketcher.Constraint("Symmetric", 2, 3, 7, 3, -1, 1),
    Sketcher.Constraint("Symmetric", 3, 3, 8, 3, -1, 1),
    Sketcher.Constraint("Symmetric", 4, 3, 9, 3, -1, 1),
    Sketcher.Constraint("Symmetric", 4, 3, 5, 3, -2),
    Sketcher.Constraint("Symmetric", 3, 3, 6, 3, -2),
    Sketcher.Constraint("PointOnObject", 2, 3, -1),
    Sketcher.Constraint("Vertical", 0, 3, 1, 3),
    Sketcher.Constraint("Vertical", 1, 3, 2, 3),
    Sketcher.Constraint("Diameter", 0, 4.4),
    Sketcher.Constraint("DistanceX", 0, 3, -1, 1, 190.0),
    Sketcher.Constraint("DistanceY", -1, 1, 0, 3, 90.0),
    Sketcher.Constraint("DistanceY", -1, 1, 1, 3, 50.0),
])
pocket2 = doc.addObject("PartDesign::Pocket", "Pocket001")
body.addObject(pocket2)
pocket2.Profile = sketch5
pocket2.Length = 5

# Sketch on XY plane
sketch6 = doc.addObject("Sketcher::SketchObject", "Sketch005")
body.addObject(sketch6)
sketch6.AttachmentSupport = (doc.XY_Plane, [""])
sketch6.MapMode = "FlatFace"
sketch6.AttachmentOffset = App.Placement(Vector(0, 0, 5), App.Rotation())
sketch6.addGeometry([
    Part.LineSegment(Vector(-205, 196.694039, 0), Vector(-205, -70, 0)),
    Part.LineSegment(Vector(-205, -70, 0), Vector(205, -70, 0)),
    Part.LineSegment(Vector(205, -70, 0), Vector(205, 196.694039, 0)),
    Part.LineSegment(Vector(205, 196.694039, 0), Vector(-205, 196.694039, 0)),
], False)
sketch6.addConstraint([
    Sketcher.Constraint("Coincident", 0, 2, 1, 1),
    Sketcher.Constraint("Coincident", 1, 2, 2, 1),
    Sketcher.Constraint("Coincident", 2, 2, 3, 1),
    Sketcher.Constraint("Coincident", 3, 2, 0, 1),
    Sketcher.Constraint("Vertical", 0),
    Sketcher.Constraint("Horizontal", 1),
    Sketcher.Constraint("Vertical", 2),
    Sketcher.Constraint("Horizontal", 3),
    Sketcher.Constraint("DistanceX", 1, 1, 1, 2, 410.0),
    Sketcher.Constraint("DistanceX", 0, 2, -1, 1, 205.0),
    Sketcher.Constraint("DistanceY", 0, 2, -1, 1, 70.0),
    Sketcher.Constraint("DistanceY", 0, 2, 0, 1, 266.694039),
])
pocket3 = doc.addObject("PartDesign::Pocket", "Pocket002")
body.addObject(pocket3)
pocket3.Profile = sketch6
pocket3.Length = 10

doc.recompute()
